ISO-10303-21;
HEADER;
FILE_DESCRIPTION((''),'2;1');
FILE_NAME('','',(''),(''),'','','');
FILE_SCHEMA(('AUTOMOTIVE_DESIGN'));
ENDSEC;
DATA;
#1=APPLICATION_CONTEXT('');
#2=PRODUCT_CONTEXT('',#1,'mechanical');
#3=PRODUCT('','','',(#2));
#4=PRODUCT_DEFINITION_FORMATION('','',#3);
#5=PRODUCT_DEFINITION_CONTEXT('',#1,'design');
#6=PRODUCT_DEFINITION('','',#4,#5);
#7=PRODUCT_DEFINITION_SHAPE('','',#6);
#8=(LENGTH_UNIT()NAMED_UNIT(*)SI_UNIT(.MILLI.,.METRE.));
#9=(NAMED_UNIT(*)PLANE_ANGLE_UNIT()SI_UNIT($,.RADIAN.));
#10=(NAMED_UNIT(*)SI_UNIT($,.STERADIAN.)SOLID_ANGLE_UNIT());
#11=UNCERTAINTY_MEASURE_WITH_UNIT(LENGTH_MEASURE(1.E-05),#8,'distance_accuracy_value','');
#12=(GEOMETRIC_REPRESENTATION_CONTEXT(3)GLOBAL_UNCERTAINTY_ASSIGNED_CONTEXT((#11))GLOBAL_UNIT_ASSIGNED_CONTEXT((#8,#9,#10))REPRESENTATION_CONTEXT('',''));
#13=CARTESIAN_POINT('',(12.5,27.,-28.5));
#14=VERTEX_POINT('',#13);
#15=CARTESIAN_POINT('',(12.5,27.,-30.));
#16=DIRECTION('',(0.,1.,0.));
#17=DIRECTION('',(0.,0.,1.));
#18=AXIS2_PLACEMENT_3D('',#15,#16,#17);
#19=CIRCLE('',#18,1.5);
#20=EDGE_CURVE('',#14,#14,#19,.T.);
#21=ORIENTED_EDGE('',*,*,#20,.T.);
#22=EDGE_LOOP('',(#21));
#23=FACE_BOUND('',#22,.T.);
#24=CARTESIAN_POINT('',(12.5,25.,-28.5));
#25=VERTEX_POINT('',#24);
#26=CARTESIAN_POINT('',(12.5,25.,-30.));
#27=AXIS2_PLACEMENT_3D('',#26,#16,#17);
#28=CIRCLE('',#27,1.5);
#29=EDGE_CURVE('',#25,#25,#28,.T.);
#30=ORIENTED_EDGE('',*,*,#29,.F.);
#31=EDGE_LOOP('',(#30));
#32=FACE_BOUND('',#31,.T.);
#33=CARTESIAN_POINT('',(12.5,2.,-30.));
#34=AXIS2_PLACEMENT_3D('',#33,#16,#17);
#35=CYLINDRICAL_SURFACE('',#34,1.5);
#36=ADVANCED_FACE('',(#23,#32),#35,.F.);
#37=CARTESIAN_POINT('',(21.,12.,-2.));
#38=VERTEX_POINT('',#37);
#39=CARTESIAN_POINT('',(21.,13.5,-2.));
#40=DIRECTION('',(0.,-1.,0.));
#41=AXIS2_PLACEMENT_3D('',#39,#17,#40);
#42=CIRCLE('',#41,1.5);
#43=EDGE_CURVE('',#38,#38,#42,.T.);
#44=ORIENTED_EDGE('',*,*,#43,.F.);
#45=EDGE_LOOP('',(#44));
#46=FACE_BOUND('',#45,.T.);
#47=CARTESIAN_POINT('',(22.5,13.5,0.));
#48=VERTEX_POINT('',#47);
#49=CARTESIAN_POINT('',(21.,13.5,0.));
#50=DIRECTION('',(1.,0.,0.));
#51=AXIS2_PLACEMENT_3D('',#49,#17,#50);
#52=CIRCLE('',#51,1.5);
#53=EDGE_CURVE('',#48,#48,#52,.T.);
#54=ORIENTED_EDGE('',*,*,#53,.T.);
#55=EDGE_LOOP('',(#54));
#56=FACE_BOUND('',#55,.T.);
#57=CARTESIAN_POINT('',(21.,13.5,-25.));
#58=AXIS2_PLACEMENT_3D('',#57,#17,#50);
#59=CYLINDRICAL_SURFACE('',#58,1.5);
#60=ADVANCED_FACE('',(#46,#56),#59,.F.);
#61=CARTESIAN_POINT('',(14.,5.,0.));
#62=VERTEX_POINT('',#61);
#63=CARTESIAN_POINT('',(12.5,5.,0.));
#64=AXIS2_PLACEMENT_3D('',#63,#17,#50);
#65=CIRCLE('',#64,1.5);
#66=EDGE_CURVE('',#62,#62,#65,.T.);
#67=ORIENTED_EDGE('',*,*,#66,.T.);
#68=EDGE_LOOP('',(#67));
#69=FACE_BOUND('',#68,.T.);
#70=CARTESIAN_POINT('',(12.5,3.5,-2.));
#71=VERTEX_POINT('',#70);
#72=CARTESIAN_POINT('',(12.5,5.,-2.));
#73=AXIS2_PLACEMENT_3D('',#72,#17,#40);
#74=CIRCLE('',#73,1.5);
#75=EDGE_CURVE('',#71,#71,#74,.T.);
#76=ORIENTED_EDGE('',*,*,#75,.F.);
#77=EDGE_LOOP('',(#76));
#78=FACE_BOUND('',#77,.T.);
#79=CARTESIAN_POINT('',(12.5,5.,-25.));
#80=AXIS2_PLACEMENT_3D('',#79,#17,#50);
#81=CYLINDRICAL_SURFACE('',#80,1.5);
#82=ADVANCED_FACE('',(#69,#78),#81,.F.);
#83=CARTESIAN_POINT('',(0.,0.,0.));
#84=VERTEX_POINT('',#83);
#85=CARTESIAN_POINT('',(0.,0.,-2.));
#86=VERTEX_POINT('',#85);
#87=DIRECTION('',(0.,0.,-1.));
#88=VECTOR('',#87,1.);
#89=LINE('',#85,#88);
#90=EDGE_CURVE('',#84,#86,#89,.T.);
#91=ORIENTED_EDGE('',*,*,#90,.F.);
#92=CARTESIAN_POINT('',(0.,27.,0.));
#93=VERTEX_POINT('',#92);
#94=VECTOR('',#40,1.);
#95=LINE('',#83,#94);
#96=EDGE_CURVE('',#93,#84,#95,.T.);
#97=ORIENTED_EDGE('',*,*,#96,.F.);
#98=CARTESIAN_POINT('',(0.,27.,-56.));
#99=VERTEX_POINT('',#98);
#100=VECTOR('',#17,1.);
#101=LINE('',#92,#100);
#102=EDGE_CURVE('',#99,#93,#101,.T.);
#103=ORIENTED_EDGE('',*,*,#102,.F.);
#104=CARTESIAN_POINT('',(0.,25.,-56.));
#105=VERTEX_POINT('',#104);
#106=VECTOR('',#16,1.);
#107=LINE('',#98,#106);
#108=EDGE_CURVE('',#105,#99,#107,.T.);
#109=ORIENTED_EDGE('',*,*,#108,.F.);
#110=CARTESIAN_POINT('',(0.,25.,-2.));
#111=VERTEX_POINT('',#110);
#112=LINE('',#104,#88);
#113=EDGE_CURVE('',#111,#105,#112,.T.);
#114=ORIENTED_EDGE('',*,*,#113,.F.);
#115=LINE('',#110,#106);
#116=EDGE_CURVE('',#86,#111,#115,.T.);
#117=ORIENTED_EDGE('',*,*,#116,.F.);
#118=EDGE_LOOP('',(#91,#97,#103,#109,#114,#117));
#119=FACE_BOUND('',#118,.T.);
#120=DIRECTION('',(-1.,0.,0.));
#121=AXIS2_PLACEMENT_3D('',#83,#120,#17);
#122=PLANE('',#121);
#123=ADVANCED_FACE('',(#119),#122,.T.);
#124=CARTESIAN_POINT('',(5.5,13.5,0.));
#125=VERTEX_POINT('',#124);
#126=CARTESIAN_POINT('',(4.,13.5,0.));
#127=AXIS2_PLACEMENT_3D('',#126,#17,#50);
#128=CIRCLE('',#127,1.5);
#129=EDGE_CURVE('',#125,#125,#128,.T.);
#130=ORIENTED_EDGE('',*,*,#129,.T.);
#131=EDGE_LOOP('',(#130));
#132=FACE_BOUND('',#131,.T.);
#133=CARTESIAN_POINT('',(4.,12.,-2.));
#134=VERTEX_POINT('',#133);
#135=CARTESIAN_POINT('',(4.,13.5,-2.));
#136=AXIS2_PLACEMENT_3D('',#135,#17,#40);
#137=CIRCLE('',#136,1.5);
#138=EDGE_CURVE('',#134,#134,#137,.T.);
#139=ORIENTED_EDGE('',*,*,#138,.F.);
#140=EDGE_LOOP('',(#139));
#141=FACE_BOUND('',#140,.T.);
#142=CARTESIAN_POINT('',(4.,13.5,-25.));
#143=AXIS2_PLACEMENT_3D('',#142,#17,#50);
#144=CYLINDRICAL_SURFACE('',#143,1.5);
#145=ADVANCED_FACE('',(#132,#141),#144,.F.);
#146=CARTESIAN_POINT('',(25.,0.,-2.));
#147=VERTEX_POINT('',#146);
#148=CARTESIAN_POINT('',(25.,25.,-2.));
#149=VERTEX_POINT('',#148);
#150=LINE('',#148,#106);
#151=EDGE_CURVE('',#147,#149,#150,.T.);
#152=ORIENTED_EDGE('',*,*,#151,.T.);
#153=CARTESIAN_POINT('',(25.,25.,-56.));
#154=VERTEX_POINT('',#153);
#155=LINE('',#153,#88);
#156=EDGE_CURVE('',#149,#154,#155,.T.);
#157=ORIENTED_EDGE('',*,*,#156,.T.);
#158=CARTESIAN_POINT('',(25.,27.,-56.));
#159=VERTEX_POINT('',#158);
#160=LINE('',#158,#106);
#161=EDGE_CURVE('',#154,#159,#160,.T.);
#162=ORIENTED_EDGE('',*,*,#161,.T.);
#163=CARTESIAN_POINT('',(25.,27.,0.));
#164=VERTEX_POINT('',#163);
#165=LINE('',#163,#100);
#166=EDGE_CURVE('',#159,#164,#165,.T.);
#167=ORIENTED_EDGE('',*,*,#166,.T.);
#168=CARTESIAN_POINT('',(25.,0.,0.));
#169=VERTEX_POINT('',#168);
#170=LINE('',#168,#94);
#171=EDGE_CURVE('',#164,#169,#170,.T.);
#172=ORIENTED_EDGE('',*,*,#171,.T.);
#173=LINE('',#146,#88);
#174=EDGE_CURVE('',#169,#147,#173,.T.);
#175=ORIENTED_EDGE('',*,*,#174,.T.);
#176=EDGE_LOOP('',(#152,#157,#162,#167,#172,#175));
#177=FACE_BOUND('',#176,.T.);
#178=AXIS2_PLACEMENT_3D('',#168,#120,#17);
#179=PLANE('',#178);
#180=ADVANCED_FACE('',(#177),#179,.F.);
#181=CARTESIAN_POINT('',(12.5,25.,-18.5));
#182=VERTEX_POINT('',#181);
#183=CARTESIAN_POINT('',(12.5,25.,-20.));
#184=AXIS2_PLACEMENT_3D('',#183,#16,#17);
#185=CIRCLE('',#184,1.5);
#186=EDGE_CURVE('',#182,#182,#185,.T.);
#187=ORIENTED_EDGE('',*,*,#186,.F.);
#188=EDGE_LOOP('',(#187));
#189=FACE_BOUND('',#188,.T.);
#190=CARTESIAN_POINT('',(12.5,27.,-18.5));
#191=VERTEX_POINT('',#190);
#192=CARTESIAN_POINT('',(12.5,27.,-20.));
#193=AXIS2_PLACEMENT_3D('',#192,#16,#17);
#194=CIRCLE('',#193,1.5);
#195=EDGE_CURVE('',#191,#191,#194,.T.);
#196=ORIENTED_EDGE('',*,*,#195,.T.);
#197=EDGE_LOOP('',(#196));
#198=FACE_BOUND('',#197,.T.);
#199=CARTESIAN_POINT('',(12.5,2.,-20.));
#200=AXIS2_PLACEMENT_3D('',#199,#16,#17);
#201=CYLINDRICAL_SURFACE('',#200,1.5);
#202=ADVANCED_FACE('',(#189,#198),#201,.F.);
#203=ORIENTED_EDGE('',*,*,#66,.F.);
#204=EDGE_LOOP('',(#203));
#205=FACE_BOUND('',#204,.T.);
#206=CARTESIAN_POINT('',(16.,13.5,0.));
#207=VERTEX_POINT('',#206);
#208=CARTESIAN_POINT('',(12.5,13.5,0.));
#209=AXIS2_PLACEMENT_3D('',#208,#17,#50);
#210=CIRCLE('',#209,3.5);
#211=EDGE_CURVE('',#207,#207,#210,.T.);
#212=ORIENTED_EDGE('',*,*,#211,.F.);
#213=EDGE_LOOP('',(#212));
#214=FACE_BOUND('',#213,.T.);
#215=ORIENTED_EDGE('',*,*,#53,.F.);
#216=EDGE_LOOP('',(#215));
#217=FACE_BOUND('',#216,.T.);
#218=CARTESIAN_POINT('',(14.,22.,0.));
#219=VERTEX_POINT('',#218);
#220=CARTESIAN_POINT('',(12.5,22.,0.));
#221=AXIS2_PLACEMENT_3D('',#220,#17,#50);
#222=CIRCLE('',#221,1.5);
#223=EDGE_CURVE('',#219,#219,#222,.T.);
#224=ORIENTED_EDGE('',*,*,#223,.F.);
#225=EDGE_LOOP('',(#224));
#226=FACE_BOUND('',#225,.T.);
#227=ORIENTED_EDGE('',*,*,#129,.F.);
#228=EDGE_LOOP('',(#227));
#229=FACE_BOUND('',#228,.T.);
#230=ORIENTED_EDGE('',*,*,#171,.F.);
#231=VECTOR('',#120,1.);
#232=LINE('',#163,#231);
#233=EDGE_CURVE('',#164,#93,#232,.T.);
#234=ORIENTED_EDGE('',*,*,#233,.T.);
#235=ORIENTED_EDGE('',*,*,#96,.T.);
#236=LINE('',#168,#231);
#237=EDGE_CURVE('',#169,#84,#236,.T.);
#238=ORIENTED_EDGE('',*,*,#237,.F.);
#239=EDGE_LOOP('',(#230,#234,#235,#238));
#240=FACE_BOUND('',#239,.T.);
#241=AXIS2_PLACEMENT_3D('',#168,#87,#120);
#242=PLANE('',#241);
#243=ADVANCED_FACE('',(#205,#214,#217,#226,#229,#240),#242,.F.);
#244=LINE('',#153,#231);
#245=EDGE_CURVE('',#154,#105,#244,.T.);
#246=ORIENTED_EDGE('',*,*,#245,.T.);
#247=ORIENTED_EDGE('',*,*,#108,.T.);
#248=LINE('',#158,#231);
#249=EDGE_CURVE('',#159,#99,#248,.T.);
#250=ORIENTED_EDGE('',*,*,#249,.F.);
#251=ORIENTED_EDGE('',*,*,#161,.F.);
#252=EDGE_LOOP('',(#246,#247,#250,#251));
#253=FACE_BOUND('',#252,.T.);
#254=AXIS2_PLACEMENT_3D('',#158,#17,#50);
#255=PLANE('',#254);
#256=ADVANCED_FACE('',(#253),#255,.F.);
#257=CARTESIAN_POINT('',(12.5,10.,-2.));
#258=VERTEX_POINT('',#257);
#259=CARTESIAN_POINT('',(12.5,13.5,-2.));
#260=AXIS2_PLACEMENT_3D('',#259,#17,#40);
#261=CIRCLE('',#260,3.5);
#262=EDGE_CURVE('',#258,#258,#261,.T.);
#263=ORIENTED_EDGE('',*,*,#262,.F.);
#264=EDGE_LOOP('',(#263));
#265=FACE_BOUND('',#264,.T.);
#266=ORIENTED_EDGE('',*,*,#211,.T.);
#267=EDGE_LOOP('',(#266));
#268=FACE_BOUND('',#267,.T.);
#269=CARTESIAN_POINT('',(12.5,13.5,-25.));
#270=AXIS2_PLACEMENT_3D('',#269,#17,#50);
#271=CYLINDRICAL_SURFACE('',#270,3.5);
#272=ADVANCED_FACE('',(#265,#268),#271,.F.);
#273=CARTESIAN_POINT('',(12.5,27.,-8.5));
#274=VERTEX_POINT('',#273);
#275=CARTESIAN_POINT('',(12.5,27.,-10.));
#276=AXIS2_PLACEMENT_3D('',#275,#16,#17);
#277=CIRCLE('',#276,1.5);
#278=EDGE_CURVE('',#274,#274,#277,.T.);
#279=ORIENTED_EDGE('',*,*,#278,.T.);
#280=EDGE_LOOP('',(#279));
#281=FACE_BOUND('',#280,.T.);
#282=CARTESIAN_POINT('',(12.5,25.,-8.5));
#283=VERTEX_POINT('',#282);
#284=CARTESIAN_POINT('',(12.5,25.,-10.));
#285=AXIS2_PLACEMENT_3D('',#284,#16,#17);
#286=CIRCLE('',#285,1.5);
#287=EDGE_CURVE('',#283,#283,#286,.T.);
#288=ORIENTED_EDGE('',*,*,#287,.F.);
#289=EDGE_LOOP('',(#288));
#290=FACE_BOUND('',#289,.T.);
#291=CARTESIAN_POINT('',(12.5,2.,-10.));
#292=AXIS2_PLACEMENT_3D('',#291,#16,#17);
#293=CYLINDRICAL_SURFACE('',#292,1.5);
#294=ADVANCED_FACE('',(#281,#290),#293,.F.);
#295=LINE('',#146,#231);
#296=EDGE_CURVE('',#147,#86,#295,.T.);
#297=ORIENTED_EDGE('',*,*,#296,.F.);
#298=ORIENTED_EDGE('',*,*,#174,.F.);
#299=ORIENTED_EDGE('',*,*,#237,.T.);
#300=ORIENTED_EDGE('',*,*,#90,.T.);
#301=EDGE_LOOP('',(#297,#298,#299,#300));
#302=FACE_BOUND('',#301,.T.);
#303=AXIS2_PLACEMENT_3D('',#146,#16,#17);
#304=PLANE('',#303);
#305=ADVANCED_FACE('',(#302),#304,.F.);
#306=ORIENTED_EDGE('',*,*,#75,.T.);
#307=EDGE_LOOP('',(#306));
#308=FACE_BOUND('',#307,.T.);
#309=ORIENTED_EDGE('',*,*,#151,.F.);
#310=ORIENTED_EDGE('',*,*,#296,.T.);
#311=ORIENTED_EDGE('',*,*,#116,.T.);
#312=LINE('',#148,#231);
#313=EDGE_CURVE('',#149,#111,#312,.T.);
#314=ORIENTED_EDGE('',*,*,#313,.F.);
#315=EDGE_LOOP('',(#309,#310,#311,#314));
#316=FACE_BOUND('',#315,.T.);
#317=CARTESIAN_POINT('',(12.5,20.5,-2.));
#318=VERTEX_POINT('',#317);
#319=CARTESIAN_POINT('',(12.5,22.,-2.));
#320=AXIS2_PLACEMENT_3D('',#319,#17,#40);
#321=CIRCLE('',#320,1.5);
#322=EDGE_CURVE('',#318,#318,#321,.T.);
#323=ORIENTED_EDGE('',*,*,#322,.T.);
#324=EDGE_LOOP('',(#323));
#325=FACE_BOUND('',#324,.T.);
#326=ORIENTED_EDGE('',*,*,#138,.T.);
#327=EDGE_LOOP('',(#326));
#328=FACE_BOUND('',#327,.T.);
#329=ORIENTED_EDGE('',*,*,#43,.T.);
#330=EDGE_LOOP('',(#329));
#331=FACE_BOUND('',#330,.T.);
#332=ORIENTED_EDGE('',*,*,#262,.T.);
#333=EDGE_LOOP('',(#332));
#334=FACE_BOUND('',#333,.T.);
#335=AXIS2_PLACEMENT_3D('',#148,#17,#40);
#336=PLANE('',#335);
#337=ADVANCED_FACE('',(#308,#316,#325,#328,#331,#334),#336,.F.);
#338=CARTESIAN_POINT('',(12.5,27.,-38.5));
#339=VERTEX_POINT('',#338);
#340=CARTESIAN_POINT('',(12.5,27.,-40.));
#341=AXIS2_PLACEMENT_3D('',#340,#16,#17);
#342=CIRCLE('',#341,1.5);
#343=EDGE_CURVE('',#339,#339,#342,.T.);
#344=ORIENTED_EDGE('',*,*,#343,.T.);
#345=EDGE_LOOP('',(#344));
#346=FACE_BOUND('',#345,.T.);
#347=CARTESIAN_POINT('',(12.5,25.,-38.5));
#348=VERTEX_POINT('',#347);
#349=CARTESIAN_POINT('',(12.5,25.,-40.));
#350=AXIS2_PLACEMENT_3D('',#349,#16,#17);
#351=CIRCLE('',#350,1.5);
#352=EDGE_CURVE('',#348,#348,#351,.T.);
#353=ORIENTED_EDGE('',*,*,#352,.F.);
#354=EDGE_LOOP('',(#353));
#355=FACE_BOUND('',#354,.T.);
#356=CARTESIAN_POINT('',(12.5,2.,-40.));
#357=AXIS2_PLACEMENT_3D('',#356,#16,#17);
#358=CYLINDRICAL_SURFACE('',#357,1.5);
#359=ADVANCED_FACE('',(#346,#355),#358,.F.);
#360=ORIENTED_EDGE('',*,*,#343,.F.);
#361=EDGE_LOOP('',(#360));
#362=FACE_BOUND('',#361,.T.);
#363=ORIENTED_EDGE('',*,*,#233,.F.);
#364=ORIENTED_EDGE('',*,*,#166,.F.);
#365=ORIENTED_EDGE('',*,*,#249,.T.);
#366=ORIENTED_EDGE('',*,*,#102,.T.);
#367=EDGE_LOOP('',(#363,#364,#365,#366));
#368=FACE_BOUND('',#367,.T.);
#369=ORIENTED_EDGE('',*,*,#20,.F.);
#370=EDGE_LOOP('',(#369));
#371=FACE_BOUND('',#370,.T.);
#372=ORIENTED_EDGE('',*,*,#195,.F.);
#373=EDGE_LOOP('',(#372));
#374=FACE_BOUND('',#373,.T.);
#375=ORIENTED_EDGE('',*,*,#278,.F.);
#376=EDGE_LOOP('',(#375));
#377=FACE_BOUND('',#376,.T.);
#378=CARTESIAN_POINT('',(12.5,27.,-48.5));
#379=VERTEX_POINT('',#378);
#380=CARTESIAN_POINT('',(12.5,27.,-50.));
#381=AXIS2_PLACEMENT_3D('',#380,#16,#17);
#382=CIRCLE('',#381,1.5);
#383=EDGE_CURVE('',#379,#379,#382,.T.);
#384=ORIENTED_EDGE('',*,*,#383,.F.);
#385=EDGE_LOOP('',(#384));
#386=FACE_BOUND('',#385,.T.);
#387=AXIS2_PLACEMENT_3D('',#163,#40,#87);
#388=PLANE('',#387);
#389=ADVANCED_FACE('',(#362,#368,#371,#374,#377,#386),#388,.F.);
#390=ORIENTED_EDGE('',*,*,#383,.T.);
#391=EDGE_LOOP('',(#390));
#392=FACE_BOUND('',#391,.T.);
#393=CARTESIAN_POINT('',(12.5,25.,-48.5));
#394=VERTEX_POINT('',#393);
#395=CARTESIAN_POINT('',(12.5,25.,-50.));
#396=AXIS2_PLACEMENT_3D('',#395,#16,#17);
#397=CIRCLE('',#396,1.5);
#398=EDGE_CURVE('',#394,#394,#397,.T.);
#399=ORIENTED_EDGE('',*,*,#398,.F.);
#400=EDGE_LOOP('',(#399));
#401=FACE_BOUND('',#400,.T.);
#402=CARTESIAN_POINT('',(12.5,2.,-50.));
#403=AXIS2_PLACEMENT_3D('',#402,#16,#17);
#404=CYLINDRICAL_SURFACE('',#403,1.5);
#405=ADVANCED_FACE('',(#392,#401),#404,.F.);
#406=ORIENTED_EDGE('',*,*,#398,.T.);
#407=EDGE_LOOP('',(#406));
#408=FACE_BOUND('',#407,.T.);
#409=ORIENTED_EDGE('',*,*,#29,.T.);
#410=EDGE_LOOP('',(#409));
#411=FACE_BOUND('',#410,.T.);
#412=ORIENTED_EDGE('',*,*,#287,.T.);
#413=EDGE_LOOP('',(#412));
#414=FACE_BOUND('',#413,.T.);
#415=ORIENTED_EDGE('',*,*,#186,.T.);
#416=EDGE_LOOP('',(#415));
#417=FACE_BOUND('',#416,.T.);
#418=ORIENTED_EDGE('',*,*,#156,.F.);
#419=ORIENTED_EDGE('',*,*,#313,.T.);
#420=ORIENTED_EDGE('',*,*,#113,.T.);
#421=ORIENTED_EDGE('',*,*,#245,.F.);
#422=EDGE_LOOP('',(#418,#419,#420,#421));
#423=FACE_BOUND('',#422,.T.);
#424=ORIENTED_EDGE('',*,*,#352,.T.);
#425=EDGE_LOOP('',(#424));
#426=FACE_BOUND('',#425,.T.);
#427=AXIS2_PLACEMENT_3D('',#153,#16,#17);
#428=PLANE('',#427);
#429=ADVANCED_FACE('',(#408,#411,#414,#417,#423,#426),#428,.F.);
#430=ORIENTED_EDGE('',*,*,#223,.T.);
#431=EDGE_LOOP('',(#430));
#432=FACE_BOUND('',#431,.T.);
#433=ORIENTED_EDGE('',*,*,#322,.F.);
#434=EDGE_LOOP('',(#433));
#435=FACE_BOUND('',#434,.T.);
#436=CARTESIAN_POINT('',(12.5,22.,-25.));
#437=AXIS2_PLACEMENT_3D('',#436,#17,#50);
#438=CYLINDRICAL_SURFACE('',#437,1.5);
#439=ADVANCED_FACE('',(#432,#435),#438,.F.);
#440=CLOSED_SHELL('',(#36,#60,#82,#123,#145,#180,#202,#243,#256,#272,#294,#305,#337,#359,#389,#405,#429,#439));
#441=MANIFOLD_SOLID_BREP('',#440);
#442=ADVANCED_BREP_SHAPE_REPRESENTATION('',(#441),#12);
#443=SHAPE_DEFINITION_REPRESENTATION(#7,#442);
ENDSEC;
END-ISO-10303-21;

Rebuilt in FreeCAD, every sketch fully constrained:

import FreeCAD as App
import Part
import Sketcher

doc = App.newDocument("Part")
params = doc.addObject("Spreadsheet::Sheet", "Params")
for row, (alias, value) in enumerate([
    ("sketch1_width", "27 mm"),
    ("sketch1_width2", "25 mm"),
    ("sketch1_height", "54 mm"),
    ("pad1_length", "25 mm"),
    ("sketch2_diameter", "3 mm"),
    ("sketch2_diameter2", "7 mm"),
    ("pocket1_length", "25 mm"),
    ("sketch3_diameter", "3 mm"),
    ("pocket2_length", "25 mm"),
], start=1):
    params.set(f"A{row}", alias)
    params.set(f"B{row}", "=" + value)
    params.setAlias(f"B{row}", alias)

body = doc.addObject("PartDesign::Body", "Body")

sketch1 = body.newObject("Sketcher::SketchObject", "Sketch")
sketch1.AttachmentSupport = (doc.getObject("YZ_Plane"), [""])
sketch1.MapMode = "FlatFace"
sketch1.addGeometry(Part.LineSegment(App.Vector(27, 0, 0), App.Vector(0, 0, 0)), False)
sketch1.addGeometry(Part.LineSegment(App.Vector(0, 0, 0), App.Vector(0, -2, 0)), False)
sketch1.addGeometry(Part.LineSegment(App.Vector(0, -2, 0), App.Vector(25, -2, 0)), False)
sketch1.addGeometry(Part.LineSegment(App.Vector(25, -2, 0), App.Vector(25, -56, 0)), False)
sketch1.addGeometry(Part.LineSegment(App.Vector(25, -56, 0), App.Vector(27, -56, 0)), False)
sketch1.addGeometry(Part.LineSegment(App.Vector(27, -56, 0), App.Vector(27, 0, 0)), False)
sketch1.addConstraint(Sketcher.Constraint("Coincident", 0, 2, 1, 1))
sketch1.addConstraint(Sketcher.Constraint("Coincident", 1, 2, 2, 1))
sketch1.addConstraint(Sketcher.Constraint("Coincident", 2, 2, 3, 1))
sketch1.addConstraint(Sketcher.Constraint("Coincident", 3, 2, 4, 1))
sketch1.addConstraint(Sketcher.Constraint("Coincident", 4, 2, 5, 1))
sketch1.addConstraint(Sketcher.Constraint("Coincident", 5, 2, 0, 1))
sketch1.addConstraint(Sketcher.Constraint("Horizontal", 0))
sketch1.addConstraint(Sketcher.Constraint("Vertical", 1))
sketch1.addConstraint(Sketcher.Constraint("Horizontal", 2))
sketch1.addConstraint(Sketcher.Constraint("Vertical", 3))
sketch1.addConstraint(Sketcher.Constraint("Horizontal", 4))
sketch1.addConstraint(Sketcher.Constraint("Vertical", 5))
sketch1.addConstraint(Sketcher.Constraint("Coincident", 0, 2, -1, 1))
sketch1.addConstraint(Sketcher.Constraint("Equal", 4, 1))
sketch1.addConstraint(Sketcher.Constraint("DistanceX", 0, 2, 0, 1, 27.0))
sketch1.addConstraint(Sketcher.Constraint("DistanceX", 2, 1, 2, 2, 25.0))
sketch1.addConstraint(Sketcher.Constraint("DistanceY", 3, 2, 3, 1, 54.0))
sketch1.setExpression("Constraints[14]", "Params.sketch1_width")
sketch1.setExpression("Constraints[15]", "Params.sketch1_width2")
sketch1.setExpression("Constraints[16]", "Params.sketch1_height")
pad1 = body.newObject("PartDesign::Pad", "Pad")
pad1.Profile = sketch1
pad1.setExpression("Length", "Params.pad1_length")

sketch2 = body.newObject("Sketcher::SketchObject", "Sketch001")
sketch2.AttachmentSupport = (doc.getObject("XY_Plane"), [""])
sketch2.MapMode = "FlatFace"
sketch2.addGeometry(Part.Circle(App.Vector(4, 13.5, 0), App.Vector(0, 0, 1), 1.5), False)
sketch2.addGeometry(Part.Circle(App.Vector(12.5, 13.5, 0), App.Vector(0, 0, 1), 3.5), False)
sketch2.addGeometry(Part.Circle(App.Vector(12.5, 22, 0), App.Vector(0, 0, 1), 1.5), False)
sketch2.addGeometry(Part.Circle(App.Vector(21, 13.5, 0), App.Vector(0, 0, 1), 1.5), False)
sketch2.addGeometry(Part.Circle(App.Vector(12.5, 5, 0), App.Vector(0, 0, 1), 1.5), False)
sketch2.addConstraint(Sketcher.Constraint("Equal", 0, 2))
sketch2.addConstraint(Sketcher.Constraint("Equal", 2, 3))
sketch2.addConstraint(Sketcher.Constraint("Equal", 3, 4))
sketch2.addConstraint(Sketcher.Constraint("Horizontal", 0, 3, 1, 3))
sketch2.addConstraint(Sketcher.Constraint("Horizontal", 1, 3, 3, 3))
sketch2.addConstraint(Sketcher.Constraint("Vertical", 1, 3, 2, 3))
sketch2.addConstraint(Sketcher.Constraint("Vertical", 2, 3, 4, 3))
sketch2.addConstraint(Sketcher.Constraint("Diameter", 0, 3.0))
sketch2.addConstraint(Sketcher.Constraint("Diameter", 1, 7.0))
sketch2.addConstraint(Sketcher.Constraint("DistanceX", -1, 1, 0, 3, 4.0))
sketch2.addConstraint(Sketcher.Constraint("DistanceY", -1, 1, 2, 3, 22.0))
sketch2.addConstraint(Sketcher.Constraint("DistanceX", -1, 1, 3, 3, 21.0))
sketch2.addConstraint(Sketcher.Constraint("DistanceY", -1, 1, 4, 3, 5.0))
sketch2.addConstraint(Sketcher.Constraint("DistanceY", -1, 1, 0, 3, 13.5))
sketch2.addConstraint(Sketcher.Constraint("DistanceX", -1, 1, 1, 3, 12.5))
sketch2.setExpression("Constraints[7]", "Params.sketch2_diameter")
sketch2.setExpression("Constraints[8]", "Params.sketch2_diameter2")
pocket1 = body.newObject("PartDesign::Pocket", "Pocket")
pocket1.Profile = sketch2
pocket1.setExpression("Length", "Params.pocket1_length")

sketch3 = body.newObject("Sketcher::SketchObject", "Sketch002")
sketch3.AttachmentSupport = (doc.getObject("XZ_Plane"), [""])
sketch3.MapMode = "FlatFace"
sketch3.AttachmentOffset = App.Placement(App.Vector(0, 0, -27), App.Rotation())
sketch3.addGeometry(Part.Circle(App.Vector(12.5, -10, 0), App.Vector(0, 0, 1), 1.5), False)
sketch3.addGeometry(Part.Circle(App.Vector(12.5, -20, 0), App.Vector(0, 0, 1), 1.5), False)
sketch3.addGeometry(Part.Circle(App.Vector(12.5, -30, 0), App.Vector(0, 0, 1), 1.5), False)
sketch3.addGeometry(Part.Circle(App.Vector(12.5, -40, 0), App.Vector(0, 0, 1), 1.5), False)
sketch3.addGeometry(Part.Circle(App.Vector(12.5, -50, 0), App.Vector(0, 0, 1), 1.5), False)
sketch3.addConstraint(Sketcher.Constraint("Equal", 0, 1))
sketch3.addConstraint(Sketcher.Constraint("Equal", 1, 2))
sketch3.addConstraint(Sketcher.Constraint("Equal", 2, 3))
sketch3.addConstraint(Sketcher.Constraint("Equal", 3, 4))
sketch3.addConstraint(Sketcher.Constraint("Vertical", 0, 3, 1, 3))
sketch3.addConstraint(Sketcher.Constraint("Vertical", 1, 3, 2, 3))
sketch3.addConstraint(Sketcher.Constraint("Vertical", 2, 3, 3, 3))
sketch3.addConstraint(Sketcher.Constraint("Vertical", 3, 3, 4, 3))
sketch3.addConstraint(Sketcher.Constraint("Diameter", 0, 3.0))
sketch3.addConstraint(Sketcher.Constraint("DistanceY", 0, 3, -1, 1, 10.0))
sketch3.addConstraint(Sketcher.Constraint("DistanceY", 1, 3, -1, 1, 20.0))
sketch3.addConstraint(Sketcher.Constraint("DistanceY", 2, 3, -1, 1, 30.0))
sketch3.addConstraint(Sketcher.Constraint("DistanceY", 3, 3, -1, 1, 40.0))
sketch3.addConstraint(Sketcher.Constraint("DistanceY", 4, 3, -1, 1, 50.0))
sketch3.addConstraint(Sketcher.Constraint("DistanceX", -1, 1, 0, 3, 12.5))
sketch3.setExpression("Constraints[8]", "Params.sketch3_diameter")
pocket2 = body.newObject("PartDesign::Pocket", "Pocket001")
pocket2.Profile = sketch3
pocket2.setExpression("Length", "Params.pocket2_length")
pocket2.Reversed = True

doc.recompute()
